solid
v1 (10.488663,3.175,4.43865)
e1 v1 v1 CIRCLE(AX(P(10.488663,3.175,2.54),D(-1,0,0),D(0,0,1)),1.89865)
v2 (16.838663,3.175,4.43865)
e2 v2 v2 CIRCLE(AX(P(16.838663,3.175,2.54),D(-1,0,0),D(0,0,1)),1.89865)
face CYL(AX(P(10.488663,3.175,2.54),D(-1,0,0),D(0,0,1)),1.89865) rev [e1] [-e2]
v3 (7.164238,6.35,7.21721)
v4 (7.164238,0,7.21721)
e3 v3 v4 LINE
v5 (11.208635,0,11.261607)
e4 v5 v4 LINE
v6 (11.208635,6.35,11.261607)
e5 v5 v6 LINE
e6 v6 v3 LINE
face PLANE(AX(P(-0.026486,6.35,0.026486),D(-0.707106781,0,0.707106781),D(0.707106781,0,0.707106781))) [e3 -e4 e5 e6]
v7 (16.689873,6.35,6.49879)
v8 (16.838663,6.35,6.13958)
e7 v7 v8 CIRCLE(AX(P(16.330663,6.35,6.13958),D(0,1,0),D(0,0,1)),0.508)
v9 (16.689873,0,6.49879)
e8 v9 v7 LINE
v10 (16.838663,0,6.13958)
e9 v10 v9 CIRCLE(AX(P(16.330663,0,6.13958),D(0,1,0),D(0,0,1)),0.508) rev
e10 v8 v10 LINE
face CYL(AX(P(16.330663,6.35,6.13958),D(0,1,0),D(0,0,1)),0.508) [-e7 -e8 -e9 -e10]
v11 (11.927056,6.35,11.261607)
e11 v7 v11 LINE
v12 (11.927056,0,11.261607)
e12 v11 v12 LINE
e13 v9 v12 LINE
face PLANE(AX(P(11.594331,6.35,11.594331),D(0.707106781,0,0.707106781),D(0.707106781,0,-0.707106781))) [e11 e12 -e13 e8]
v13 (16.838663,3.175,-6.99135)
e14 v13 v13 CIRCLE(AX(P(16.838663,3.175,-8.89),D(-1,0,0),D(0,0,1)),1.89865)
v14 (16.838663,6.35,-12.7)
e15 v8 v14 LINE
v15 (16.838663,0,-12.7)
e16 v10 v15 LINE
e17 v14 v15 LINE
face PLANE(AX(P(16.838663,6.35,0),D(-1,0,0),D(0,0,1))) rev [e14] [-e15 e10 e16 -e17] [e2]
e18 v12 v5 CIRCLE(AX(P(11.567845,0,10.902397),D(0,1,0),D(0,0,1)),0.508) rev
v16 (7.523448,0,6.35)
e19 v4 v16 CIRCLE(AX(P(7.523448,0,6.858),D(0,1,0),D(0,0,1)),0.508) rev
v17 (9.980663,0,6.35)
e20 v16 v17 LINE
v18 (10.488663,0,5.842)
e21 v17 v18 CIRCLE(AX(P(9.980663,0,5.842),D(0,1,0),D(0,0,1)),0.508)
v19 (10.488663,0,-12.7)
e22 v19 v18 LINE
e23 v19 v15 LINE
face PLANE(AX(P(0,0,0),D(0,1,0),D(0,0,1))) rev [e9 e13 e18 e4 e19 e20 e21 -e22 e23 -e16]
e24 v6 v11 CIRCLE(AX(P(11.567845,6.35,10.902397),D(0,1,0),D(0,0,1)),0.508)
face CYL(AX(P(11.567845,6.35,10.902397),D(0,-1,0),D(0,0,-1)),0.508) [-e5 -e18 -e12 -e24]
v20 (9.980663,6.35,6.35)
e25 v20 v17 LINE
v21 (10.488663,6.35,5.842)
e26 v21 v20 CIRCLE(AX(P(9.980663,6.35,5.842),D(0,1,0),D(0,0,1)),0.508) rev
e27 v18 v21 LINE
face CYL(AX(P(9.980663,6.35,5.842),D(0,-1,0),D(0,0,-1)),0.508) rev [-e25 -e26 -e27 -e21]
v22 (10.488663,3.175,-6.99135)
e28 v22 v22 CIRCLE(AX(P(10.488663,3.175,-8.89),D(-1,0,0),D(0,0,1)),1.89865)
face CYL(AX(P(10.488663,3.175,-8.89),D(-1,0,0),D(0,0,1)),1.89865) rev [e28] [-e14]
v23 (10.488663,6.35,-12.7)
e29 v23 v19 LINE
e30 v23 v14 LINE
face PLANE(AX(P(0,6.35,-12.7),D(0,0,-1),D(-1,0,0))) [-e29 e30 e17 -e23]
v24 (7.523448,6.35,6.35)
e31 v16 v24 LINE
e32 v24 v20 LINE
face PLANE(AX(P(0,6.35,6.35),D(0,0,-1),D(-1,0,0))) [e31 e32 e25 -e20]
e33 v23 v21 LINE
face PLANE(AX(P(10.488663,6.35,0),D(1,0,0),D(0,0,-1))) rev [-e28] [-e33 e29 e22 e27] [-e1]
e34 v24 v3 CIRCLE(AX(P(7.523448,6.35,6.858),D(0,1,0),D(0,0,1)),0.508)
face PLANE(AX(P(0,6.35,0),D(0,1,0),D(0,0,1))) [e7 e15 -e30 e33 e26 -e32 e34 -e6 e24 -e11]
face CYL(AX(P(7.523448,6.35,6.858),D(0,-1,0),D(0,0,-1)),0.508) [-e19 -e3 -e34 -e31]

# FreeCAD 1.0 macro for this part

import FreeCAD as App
import Part
import Sketcher

V = App.Vector
Q = App.Units.Quantity


def edges_at(feature, points):
    """Names of the edges that pass closest to the given points."""
    edges = feature.Shape.Edges
    near = lambda p: min(range(len(edges)), key=lambda i: edges[i].distToShape(Part.Vertex(*p))[0])
    return sorted({f"Edge{near(p) + 1}" for p in points})


def add_polygon(sketch, points):
    """Adds a closed chain of lines whose ends are joined by coincident constraints."""
    first, n = sketch.GeometryCount, len(points)
    for a, b in zip(points, points[1:] + points[:1]):
        sketch.addGeometry(Part.LineSegment(App.Vector(*a, 0), App.Vector(*b, 0)), False)
    for i in range(n):
        sketch.addConstraint(Sketcher.Constraint("Coincident", first + i, 2, first + (i + 1) % n, 1))

doc = App.newDocument("Part")
body = doc.addObject("PartDesign::Body", "Body")

# Sketch on XZ plane
sketch1 = doc.addObject("Sketcher::SketchObject", "Sketch")
body.addObject(sketch1)
sketch1.AttachmentSupport = (doc.XZ_Plane, [""])
sketch1.MapMode = "FlatFace"
add_polygon(sketch1, [(11.6, 11.6), (16.8, 6.3), (16.8, -12.7), (10.5, -12.7), (10.5, 6.3), (6.3, 6.3)])  # lines 0-5
sketch1.addConstraint([
    Sketcher.Constraint("Vertical", 1),
    Sketcher.Constraint("Horizontal", 2),
    Sketcher.Constraint("Vertical", 3),
    Sketcher.Constraint("Horizontal", 4),
    Sketcher.Constraint("Perpendicular", 0, 5),
    Sketcher.Constraint("Horizontal", 0, 2, 3, 2),
    Sketcher.Constraint("Equal", 0, 5),
    Sketcher.Constraint("DistanceX", 2, 2, 2, 1, Q("0.25 in")),
    Sketcher.Constraint("DistanceY", 1, 2, 1, 1, Q("0.75 in")),
    Sketcher.Constraint("DistanceY", 1, 2, -1, 1, Q("0.5 in")),
    Sketcher.Constraint("Distance", 0, Q("7.454062 mm")),
    Sketcher.Constraint("DistanceX", -1, 1, 0, 2, Q("16.838663 mm")),
])
pad1 = doc.addObject("PartDesign::Pad", "Pad")
body.addObject(pad1)
pad1.Profile = sketch1
pad1.Length = Q("0.25 in")
pad1.Reversed = True

# Sketch on YZ plane
sketch2 = doc.addObject("Sketcher::SketchObject", "Sketch001")
body.addObject(sketch2)
sketch2.AttachmentSupport = (doc.YZ_Plane, [""])
sketch2.MapMode = "FlatFace"
sketch2.AttachmentOffset = App.Placement(V(0, 0, 10.488663), App.Rotation())
sketch2.addGeometry([
    Part.Circle(V(3.2, -8.9, 0), V(0, 0, 1), 1.9),
    Part.Circle(V(3.2, 2.5, 0), V(0, 0, 1), 1.9),
], False)
sketch2.addConstraint([
    Sketcher.Constraint("Equal", 0, 1),
    Sketcher.Constraint("Vertical", 0, 3, 1, 3),
    Sketcher.Constraint("Diameter", 0, Q("0.1495 in")),
    Sketcher.Constraint("DistanceY", -1, 1, 1, 3, Q("0.1 in")),
    Sketcher.Constraint("DistanceY", 0, 3, -1, 1, Q("0.35 in")),
    Sketcher.Constraint("DistanceX", -1, 1, 0, 3, Q("0.125 in")),
])
doc.recompute()
hole = doc.addObject("PartDesign::Hole", "Hole")
body.addObject(hole)
hole.Profile = sketch2
hole.ThreadType = "None"
hole.Diameter = Q("0.1495 in")
hole.DepthType = "Dimension"
hole.Depth = 6.733176
hole.DrillPoint = "Angled"
hole.DrillPointAngle = 118
hole.Reversed = True
doc.recompute()

fillet = doc.addObject("PartDesign::Fillet", "Fillet")
body.addObject(fillet)
fillet.Base = (hole, edges_at(hole, [
    (6.297, 3.175, 6.35),
    (10.489, 3.175, 6.35),
    (16.839, 3.175, 6.35),
    (11.568, 3.175, 11.621),
]))
fillet.Radius = Q("0.02 in")

doc.recompute()
